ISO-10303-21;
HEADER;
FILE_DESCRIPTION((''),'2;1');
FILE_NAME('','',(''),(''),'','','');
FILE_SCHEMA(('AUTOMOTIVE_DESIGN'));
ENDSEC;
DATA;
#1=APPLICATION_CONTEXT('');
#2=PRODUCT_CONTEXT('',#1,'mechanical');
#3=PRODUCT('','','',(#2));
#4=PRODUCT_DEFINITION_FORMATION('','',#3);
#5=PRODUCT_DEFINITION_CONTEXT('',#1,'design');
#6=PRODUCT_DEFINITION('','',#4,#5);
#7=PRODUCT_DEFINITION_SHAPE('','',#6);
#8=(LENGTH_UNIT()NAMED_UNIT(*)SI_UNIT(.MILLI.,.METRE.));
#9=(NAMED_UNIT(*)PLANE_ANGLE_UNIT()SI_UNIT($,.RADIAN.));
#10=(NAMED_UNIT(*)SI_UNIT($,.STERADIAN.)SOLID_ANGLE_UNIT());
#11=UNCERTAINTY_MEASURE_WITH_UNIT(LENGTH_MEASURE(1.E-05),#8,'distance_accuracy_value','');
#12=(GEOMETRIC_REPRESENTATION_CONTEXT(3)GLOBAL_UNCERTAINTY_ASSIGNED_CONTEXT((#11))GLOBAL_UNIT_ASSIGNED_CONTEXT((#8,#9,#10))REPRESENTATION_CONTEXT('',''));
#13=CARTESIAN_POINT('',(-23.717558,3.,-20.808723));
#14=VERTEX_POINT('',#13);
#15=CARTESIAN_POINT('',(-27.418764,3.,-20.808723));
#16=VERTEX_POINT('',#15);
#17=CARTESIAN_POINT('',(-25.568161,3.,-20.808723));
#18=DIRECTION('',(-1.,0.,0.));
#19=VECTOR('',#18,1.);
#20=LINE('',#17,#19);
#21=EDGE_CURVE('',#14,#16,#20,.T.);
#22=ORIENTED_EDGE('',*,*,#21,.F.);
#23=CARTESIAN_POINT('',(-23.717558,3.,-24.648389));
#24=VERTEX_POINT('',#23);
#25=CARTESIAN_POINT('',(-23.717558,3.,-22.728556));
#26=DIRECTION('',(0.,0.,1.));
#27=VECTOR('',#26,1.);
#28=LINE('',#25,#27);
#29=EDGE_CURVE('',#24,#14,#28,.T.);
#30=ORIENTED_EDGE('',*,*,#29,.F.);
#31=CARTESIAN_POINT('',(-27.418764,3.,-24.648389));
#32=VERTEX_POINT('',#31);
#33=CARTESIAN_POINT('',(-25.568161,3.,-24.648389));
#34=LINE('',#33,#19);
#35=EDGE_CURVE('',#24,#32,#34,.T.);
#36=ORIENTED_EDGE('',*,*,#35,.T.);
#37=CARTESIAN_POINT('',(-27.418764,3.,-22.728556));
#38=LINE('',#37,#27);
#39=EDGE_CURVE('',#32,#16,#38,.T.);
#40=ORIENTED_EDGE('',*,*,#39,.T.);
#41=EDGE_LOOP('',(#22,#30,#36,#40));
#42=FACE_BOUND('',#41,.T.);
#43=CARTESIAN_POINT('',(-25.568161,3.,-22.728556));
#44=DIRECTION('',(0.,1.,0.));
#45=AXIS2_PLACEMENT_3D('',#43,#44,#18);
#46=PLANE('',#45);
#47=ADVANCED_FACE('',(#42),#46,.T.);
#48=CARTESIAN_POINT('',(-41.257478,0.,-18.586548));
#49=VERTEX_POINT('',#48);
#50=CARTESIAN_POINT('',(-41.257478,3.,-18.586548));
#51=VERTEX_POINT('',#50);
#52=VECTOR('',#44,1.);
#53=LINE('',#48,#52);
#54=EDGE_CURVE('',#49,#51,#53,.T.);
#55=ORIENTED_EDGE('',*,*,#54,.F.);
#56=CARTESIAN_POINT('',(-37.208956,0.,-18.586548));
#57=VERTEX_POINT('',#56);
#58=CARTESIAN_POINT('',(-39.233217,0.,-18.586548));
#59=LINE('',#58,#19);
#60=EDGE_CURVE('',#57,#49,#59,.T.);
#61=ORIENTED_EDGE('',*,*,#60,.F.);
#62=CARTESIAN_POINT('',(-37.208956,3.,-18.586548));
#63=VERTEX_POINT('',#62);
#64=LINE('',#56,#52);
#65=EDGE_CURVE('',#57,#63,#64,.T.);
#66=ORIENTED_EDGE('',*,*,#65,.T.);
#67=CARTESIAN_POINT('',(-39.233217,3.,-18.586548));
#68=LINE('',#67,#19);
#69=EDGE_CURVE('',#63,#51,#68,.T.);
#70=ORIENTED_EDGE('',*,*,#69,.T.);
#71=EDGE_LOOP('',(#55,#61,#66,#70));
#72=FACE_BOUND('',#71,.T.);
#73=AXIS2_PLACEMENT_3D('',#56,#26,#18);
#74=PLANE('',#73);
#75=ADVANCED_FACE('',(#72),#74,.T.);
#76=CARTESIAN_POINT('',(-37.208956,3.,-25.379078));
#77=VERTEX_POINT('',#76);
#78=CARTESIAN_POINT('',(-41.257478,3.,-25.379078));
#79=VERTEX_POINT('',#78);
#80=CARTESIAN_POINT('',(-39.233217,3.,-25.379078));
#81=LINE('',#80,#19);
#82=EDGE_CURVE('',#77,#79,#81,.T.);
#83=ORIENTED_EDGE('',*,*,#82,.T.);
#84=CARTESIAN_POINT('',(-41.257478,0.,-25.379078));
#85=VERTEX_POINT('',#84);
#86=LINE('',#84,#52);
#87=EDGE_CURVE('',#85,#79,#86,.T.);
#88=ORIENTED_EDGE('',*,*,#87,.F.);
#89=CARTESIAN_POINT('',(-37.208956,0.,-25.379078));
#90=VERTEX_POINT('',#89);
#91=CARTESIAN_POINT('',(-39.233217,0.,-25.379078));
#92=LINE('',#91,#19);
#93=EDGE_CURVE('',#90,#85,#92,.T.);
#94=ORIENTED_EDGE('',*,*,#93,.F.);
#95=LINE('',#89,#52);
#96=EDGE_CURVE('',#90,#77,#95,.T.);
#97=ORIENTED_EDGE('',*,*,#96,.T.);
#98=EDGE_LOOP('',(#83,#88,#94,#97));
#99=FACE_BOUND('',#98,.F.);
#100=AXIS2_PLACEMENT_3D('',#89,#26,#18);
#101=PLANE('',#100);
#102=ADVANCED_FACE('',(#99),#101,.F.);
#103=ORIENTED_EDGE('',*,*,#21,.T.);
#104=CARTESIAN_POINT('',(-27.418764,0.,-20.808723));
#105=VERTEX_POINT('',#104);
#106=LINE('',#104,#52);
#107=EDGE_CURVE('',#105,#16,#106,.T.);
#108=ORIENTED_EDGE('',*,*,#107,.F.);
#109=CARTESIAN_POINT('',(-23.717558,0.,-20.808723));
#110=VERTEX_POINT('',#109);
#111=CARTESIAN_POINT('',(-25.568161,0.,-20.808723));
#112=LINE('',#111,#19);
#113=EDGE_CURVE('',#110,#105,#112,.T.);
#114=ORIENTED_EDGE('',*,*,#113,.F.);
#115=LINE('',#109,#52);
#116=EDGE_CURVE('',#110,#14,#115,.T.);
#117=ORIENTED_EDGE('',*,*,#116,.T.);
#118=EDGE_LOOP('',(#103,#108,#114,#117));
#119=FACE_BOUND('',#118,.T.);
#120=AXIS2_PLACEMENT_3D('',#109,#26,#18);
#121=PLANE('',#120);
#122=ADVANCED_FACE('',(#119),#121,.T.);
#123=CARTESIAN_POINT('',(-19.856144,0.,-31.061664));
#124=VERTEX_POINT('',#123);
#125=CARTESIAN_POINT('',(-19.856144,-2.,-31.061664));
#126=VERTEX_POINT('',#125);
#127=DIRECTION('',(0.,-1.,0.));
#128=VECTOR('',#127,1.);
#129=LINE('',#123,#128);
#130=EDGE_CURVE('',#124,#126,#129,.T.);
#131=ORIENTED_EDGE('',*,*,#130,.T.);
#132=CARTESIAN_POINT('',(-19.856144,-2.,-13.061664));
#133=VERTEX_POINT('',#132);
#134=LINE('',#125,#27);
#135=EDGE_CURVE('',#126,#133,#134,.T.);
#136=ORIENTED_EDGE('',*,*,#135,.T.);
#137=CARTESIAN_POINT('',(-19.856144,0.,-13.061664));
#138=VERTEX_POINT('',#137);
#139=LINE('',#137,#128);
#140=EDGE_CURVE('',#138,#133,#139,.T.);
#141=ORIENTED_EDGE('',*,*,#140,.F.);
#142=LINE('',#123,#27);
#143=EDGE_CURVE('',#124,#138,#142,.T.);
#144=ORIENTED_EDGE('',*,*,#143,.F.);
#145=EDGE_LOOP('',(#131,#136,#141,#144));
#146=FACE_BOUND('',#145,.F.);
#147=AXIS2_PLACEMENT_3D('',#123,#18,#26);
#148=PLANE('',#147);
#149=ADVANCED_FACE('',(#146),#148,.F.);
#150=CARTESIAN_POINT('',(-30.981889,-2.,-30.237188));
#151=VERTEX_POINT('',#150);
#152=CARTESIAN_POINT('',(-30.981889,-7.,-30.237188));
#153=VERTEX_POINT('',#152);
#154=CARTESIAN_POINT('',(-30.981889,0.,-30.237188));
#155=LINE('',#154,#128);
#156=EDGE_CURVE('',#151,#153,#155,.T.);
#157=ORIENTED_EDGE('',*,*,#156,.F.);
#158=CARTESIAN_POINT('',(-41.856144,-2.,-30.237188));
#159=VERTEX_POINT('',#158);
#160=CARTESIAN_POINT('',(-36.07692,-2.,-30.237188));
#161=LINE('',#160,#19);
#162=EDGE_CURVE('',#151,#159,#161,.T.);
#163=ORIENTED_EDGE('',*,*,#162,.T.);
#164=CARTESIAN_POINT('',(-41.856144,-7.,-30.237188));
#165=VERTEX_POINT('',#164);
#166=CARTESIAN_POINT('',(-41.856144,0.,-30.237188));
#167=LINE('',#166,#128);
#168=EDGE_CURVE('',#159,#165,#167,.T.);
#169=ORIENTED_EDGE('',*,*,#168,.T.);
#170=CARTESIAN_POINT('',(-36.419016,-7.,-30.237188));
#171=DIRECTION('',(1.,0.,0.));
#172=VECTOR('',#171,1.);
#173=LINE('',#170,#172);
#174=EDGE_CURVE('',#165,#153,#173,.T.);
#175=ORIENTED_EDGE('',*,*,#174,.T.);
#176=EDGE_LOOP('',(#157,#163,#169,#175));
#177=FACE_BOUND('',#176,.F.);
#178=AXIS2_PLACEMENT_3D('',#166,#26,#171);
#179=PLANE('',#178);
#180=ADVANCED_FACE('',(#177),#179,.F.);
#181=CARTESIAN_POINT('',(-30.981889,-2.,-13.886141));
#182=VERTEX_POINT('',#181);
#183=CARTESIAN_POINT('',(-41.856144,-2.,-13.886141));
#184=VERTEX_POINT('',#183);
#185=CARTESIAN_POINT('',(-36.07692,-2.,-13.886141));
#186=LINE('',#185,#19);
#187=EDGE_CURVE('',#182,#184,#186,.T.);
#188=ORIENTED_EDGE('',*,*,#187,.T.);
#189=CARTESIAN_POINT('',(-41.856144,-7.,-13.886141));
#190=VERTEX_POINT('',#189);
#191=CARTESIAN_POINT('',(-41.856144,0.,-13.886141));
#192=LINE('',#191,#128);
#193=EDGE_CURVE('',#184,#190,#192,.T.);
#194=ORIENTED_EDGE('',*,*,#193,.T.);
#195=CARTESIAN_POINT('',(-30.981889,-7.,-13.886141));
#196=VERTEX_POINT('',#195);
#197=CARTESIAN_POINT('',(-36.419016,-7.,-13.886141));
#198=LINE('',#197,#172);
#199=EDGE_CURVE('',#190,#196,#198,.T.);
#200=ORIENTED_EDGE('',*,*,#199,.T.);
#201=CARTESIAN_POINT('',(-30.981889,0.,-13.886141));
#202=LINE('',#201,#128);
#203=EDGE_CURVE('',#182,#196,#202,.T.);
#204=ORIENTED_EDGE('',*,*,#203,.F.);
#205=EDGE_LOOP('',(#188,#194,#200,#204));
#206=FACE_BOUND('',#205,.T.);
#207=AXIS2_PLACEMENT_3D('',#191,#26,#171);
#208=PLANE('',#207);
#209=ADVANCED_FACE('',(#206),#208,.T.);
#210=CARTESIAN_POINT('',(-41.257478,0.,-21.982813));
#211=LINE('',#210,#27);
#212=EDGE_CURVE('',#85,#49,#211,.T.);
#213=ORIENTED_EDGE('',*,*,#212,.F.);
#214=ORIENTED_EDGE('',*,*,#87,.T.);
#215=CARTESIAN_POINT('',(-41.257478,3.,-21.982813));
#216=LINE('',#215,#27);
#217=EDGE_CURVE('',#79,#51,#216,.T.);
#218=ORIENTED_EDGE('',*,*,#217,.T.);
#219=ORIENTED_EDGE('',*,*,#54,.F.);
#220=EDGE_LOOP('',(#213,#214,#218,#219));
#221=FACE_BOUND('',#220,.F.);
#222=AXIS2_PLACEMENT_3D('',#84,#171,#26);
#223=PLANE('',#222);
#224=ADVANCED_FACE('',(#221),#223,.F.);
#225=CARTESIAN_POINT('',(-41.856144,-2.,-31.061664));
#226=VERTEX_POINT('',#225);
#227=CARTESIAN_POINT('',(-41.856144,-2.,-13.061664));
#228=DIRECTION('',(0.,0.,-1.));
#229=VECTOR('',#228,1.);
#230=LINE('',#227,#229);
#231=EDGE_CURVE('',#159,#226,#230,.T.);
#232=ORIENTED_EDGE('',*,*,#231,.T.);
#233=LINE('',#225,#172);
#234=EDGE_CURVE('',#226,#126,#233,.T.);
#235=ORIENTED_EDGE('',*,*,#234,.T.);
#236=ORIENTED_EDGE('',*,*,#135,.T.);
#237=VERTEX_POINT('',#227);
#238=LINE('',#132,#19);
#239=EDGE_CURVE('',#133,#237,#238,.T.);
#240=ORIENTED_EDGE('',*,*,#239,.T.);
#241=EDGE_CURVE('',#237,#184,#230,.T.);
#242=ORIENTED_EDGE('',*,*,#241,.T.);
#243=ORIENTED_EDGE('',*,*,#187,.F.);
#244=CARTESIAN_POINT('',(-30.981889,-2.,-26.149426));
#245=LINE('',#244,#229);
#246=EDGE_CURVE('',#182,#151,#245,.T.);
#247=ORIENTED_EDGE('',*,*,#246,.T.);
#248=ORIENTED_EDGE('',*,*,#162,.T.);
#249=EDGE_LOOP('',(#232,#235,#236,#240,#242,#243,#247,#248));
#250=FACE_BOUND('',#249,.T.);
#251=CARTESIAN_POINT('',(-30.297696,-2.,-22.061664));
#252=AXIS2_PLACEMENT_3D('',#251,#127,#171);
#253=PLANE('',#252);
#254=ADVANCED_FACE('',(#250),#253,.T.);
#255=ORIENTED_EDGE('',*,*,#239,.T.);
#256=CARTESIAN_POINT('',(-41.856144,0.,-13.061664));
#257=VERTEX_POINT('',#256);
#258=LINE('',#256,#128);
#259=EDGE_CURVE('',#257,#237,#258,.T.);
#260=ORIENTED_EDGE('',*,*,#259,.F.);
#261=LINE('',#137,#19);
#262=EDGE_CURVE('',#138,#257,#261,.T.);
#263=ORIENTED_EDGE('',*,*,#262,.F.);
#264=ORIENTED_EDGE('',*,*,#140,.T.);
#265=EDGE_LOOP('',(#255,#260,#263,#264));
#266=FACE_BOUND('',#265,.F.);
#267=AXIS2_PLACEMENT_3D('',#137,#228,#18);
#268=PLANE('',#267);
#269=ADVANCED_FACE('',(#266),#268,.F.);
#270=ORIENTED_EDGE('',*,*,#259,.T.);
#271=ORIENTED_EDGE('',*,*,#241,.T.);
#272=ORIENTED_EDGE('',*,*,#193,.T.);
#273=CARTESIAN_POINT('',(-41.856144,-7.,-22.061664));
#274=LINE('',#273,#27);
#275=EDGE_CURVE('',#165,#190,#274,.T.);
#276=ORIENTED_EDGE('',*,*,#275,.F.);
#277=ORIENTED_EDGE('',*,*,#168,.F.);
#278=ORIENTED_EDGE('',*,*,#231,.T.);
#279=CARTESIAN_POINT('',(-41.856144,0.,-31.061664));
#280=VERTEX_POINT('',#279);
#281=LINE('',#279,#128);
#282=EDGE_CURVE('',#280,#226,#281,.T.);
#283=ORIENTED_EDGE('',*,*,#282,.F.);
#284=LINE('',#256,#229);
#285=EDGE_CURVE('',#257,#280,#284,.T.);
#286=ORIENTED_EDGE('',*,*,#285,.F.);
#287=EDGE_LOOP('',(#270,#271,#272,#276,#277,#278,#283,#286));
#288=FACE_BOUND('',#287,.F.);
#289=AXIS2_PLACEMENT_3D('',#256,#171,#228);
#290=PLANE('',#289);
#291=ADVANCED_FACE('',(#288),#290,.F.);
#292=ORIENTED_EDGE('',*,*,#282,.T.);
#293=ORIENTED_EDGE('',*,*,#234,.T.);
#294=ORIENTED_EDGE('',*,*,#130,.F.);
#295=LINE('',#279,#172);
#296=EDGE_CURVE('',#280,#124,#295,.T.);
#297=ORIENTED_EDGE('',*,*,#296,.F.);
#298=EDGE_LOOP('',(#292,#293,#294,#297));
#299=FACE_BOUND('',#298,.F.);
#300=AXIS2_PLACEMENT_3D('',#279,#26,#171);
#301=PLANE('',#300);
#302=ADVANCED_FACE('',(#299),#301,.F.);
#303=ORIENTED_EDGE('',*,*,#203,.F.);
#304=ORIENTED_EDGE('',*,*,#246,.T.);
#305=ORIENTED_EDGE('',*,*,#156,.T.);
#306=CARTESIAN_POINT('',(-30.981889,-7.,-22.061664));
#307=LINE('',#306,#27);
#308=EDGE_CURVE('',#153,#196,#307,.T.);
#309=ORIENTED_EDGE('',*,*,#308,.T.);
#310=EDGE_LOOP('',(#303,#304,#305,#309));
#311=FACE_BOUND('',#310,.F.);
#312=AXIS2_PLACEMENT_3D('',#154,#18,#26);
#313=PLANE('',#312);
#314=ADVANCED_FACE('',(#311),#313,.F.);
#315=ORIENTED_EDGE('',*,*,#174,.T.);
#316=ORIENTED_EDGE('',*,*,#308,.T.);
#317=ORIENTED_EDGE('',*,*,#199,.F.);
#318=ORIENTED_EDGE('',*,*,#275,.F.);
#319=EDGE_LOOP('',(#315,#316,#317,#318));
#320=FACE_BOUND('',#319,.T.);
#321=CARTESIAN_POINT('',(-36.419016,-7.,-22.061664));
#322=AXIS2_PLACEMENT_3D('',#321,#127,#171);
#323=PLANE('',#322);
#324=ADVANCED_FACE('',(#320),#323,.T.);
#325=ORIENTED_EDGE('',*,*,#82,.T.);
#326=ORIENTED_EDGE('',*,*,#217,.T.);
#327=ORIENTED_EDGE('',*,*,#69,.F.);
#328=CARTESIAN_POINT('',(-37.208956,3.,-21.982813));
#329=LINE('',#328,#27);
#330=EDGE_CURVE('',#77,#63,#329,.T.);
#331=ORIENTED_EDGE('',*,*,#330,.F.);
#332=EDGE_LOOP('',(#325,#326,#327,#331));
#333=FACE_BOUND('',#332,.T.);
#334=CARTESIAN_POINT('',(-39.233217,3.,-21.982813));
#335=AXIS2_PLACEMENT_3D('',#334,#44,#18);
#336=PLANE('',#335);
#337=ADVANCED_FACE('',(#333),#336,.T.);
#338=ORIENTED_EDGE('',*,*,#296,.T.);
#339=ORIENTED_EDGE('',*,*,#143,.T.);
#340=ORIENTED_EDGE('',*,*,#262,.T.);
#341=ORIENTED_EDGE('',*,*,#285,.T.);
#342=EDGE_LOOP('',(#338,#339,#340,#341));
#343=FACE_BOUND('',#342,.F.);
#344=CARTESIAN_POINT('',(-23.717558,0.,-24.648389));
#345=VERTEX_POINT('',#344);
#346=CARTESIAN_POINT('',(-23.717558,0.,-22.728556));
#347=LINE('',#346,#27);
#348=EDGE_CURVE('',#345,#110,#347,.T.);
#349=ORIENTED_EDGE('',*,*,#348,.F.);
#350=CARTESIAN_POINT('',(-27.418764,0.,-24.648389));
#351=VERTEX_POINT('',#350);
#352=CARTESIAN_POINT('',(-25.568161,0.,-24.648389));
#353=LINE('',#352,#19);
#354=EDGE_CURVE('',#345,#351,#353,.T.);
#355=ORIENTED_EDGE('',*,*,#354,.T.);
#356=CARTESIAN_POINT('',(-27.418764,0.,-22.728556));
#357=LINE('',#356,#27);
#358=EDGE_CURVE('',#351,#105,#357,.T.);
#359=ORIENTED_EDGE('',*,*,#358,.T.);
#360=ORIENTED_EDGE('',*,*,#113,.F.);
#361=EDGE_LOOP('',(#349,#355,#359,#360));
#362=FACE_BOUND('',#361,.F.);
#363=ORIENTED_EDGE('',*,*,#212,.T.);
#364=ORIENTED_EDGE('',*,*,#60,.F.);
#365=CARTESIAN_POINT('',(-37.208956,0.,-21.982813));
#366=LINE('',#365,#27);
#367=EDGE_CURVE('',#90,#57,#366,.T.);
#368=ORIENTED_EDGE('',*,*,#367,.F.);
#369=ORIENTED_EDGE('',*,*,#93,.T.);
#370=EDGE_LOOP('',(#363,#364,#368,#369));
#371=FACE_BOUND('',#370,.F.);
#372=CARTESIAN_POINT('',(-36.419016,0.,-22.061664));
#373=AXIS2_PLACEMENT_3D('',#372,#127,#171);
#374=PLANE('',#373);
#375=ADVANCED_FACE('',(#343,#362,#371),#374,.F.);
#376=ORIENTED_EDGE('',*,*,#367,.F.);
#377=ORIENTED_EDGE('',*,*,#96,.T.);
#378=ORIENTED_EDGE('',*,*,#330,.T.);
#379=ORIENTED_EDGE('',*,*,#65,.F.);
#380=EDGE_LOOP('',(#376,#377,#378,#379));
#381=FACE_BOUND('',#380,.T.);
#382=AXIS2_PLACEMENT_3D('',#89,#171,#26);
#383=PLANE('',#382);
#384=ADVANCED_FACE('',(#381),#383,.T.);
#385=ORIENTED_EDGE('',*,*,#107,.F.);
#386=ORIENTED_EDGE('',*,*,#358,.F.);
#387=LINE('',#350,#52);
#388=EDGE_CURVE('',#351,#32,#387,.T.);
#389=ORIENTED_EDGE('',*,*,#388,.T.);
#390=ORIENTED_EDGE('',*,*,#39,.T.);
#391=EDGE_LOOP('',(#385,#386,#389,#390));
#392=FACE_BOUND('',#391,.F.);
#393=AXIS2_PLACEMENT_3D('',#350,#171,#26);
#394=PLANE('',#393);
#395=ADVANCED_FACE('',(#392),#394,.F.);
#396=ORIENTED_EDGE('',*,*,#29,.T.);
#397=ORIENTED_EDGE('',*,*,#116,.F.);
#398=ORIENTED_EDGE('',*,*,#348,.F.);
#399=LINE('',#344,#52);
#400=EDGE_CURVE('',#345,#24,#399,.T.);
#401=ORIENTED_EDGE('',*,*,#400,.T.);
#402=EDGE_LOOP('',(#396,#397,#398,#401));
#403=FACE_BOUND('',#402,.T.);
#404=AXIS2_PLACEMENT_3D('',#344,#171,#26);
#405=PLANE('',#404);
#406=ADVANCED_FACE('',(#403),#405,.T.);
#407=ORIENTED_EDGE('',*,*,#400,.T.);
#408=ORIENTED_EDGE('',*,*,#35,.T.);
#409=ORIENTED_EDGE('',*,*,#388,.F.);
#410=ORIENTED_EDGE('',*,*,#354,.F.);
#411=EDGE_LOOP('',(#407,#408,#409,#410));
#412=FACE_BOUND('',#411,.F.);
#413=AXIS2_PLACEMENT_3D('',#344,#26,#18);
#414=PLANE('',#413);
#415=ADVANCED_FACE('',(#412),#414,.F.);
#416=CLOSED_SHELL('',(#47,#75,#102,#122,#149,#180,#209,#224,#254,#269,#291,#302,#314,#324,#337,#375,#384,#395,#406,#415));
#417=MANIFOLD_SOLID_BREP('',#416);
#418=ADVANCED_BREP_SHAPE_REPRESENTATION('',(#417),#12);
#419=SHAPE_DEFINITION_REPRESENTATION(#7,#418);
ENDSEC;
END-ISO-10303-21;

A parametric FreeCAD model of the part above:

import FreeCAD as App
import Part
import Sketcher

doc = App.newDocument("Part")
params = doc.addObject("Spreadsheet::Sheet", "Params")
for row, (alias, value) in enumerate([
    ("sketch1_width", "22 mm"),
    ("sketch1_height", "18 mm"),
    ("pad1_length", "2 mm"),
    ("pad2_length", "7 mm"),
    ("pad3_length", "3 mm"),
], start=1):
    params.set(f"A{row}", alias)
    params.set(f"B{row}", "=" + value)
    params.setAlias(f"B{row}", alias)

body = doc.addObject("PartDesign::Body", "Body")

# Sketch on XZ plane
sketch1 = body.newObject("Sketcher::SketchObject", "Sketch")
sketch1.AttachmentSupport = (doc.getObject("XZ_Plane"), [""])
sketch1.MapMode = "FlatFace"
sketch1.addGeometry(Part.LineSegment(App.Vector(-19.856144, -13.061664, 0), App.Vector(-41.856144, -13.061664, 0)), False)
sketch1.addGeometry(Part.LineSegment(App.Vector(-41.856144, -13.061664, 0), App.Vector(-41.856144, -31.061664, 0)), False)
sketch1.addGeometry(Part.LineSegment(App.Vector(-41.856144, -31.061664, 0), App.Vector(-19.856144, -31.061664, 0)), False)
sketch1.addGeometry(Part.LineSegment(App.Vector(-19.856144, -31.061664, 0), App.Vector(-19.856144, -13.061664, 0)), False)
sketch1.addConstraint(Sketcher.Constraint("Coincident", 0, 2, 1, 1))
sketch1.addConstraint(Sketcher.Constraint("Coincident", 1, 2, 2, 1))
sketch1.addConstraint(Sketcher.Constraint("Coincident", 2, 2, 3, 1))
sketch1.addConstraint(Sketcher.Constraint("Coincident", 3, 2, 0, 1))
sketch1.addConstraint(Sketcher.Constraint("Horizontal", 0))
sketch1.addConstraint(Sketcher.Constraint("Vertical", 1))
sketch1.addConstraint(Sketcher.Constraint("Horizontal", 2))
sketch1.addConstraint(Sketcher.Constraint("Vertical", 3))
sketch1.addConstraint(Sketcher.Constraint("DistanceX", 0, 2, 0, 1, 22.0))
sketch1.addConstraint(Sketcher.Constraint("DistanceY", 1, 2, 1, 1, 18.0))
sketch1.addConstraint(Sketcher.Constraint("DistanceX", 0, 2, -1, 1, 41.856144))
sketch1.addConstraint(Sketcher.Constraint("DistanceY", 0, 2, -1, 1, 13.061664))
sketch1.setExpression("Constraints[8]", "Params.sketch1_width")
sketch1.setExpression("Constraints[9]", "Params.sketch1_height")
pad1 = body.newObject("PartDesign::Pad", "Pad")
pad1.Profile = sketch1
pad1.setExpression("Length", "Params.pad1_length")

# Sketch on XZ plane
sketch2 = body.newObject("Sketcher::SketchObject", "Sketch001")
sketch2.AttachmentSupport = (doc.getObject("XZ_Plane"), [""])
sketch2.MapMode = "FlatFace"
sketch2.addGeometry(Part.LineSegment(App.Vector(-41.856144, -13.886141, 0), App.Vector(-41.856144, -30.237188, 0)), False)
sketch2.addGeometry(Part.LineSegment(App.Vector(-41.856144, -30.237188, 0), App.Vector(-30.981889, -30.237188, 0)), False)
sketch2.addGeometry(Part.LineSegment(App.Vector(-30.981889, -30.237188, 0), App.Vector(-30.981889, -13.886141, 0)), False)
sketch2.addGeometry(Part.LineSegment(App.Vector(-30.981889, -13.886141, 0), App.Vector(-41.856144, -13.886141, 0)), False)
sketch2.addConstraint(Sketcher.Constraint("Coincident", 0, 2, 1, 1))
sketch2.addConstraint(Sketcher.Constraint("Coincident", 1, 2, 2, 1))
sketch2.addConstraint(Sketcher.Constraint("Coincident", 2, 2, 3, 1))
sketch2.addConstraint(Sketcher.Constraint("Coincident", 3, 2, 0, 1))
sketch2.addConstraint(Sketcher.Constraint("Vertical", 0))
sketch2.addConstraint(Sketcher.Constraint("Horizontal", 1))
sketch2.addConstraint(Sketcher.Constraint("Vertical", 2))
sketch2.addConstraint(Sketcher.Constraint("Horizontal", 3))
sketch2.addConstraint(Sketcher.Constraint("DistanceX", 1, 1, 1, 2, 10.874255))
sketch2.addConstraint(Sketcher.Constraint("DistanceY", 0, 2, 0, 1, 16.351047))
sketch2.addConstraint(Sketcher.Constraint("DistanceX", 1, 2, -1, 1, 30.981889))
sketch2.addConstraint(Sketcher.Constraint("DistanceY", 2, 2, -1, 1, 13.886141))
pad2 = body.newObject("PartDesign::Pad", "Pad001")
pad2.Profile = sketch2
pad2.setExpression("Length", "Params.pad2_length")

# Sketch on XZ plane
sketch3 = body.newObject("Sketcher::SketchObject", "Sketch002")
sketch3.AttachmentSupport = (doc.getObject("XZ_Plane"), [""])
sketch3.MapMode = "FlatFace"
sketch3.addGeometry(Part.LineSegment(App.Vector(-37.208956, -18.586548, 0), App.Vector(-37.208956, -25.379078, 0)), False)
sketch3.addGeometry(Part.LineSegment(App.Vector(-37.208956, -25.379078, 0), App.Vector(-41.257478, -25.379078, 0)), False)
sketch3.addGeometry(Part.LineSegment(App.Vector(-41.257478, -25.379078, 0), App.Vector(-41.257478, -18.586548, 0)), False)
sketch3.addGeometry(Part.LineSegment(App.Vector(-41.257478, -18.586548, 0), App.Vector(-37.208956, -18.586548, 0)), False)
sketch3.addGeometry(Part.LineSegment(App.Vector(-23.717558, -20.808723, 0), App.Vector(-23.717558, -24.648389, 0)), False)
sketch3.addGeometry(Part.LineSegment(App.Vector(-23.717558, -24.648389, 0), App.Vector(-27.418764, -24.648389, 0)), False)
sketch3.addGeometry(Part.LineSegment(App.Vector(-27.418764, -24.648389, 0), App.Vector(-27.418764, -20.808723, 0)), False)
sketch3.addGeometry(Part.LineSegment(App.Vector(-27.418764, -20.808723, 0), App.Vector(-23.717558, -20.808723, 0)), False)
sketch3.addConstraint(Sketcher.Constraint("Coincident", 0, 2, 1, 1))
sketch3.addConstraint(Sketcher.Constraint("Coincident", 1, 2, 2, 1))
sketch3.addConstraint(Sketcher.Constraint("Coincident", 2, 2, 3, 1))
sketch3.addConstraint(Sketcher.Constraint("Coincident", 3, 2, 0, 1))
sketch3.addConstraint(Sketcher.Constraint("Coincident", 4, 2, 5, 1))
sketch3.addConstraint(Sketcher.Constraint("Coincident", 5, 2, 6, 1))
sketch3.addConstraint(Sketcher.Constraint("Coincident", 6, 2, 7, 1))
sketch3.addConstraint(Sketcher.Constraint("Coincident", 7, 2, 4, 1))
sketch3.addConstraint(Sketcher.Constraint("Vertical", 0))
sketch3.addConstraint(Sketcher.Constraint("Horizontal", 1))
sketch3.addConstraint(Sketcher.Constraint("Vertical", 2))
sketch3.addConstraint(Sketcher.Constraint("Horizontal", 3))
sketch3.addConstraint(Sketcher.Constraint("Vertical", 4))
sketch3.addConstraint(Sketcher.Constraint("Horizontal", 5))
sketch3.addConstraint(Sketcher.Constraint("Vertical", 6))
sketch3.addConstraint(Sketcher.Constraint("Horizontal", 7))
sketch3.addConstraint(Sketcher.Constraint("DistanceY", 0, 2, 0, 1, 6.79253))
sketch3.addConstraint(Sketcher.Constraint("DistanceX", 1, 2, 1, 1, 4.048523))
sketch3.addConstraint(Sketcher.Constraint("DistanceX", 5, 2, 5, 1, 3.701206))
sketch3.addConstraint(Sketcher.Constraint("DistanceY", 4, 2, 4, 1, 3.839666))
sketch3.addConstraint(Sketcher.Constraint("DistanceY", 0, 2, -1, 1, 25.379078))
sketch3.addConstraint(Sketcher.Constraint("DistanceX", 1, 2, -1, 1, 41.257478))
sketch3.addConstraint(Sketcher.Constraint("DistanceX", 4, 2, -1, 1, 23.717558))
sketch3.addConstraint(Sketcher.Constraint("DistanceY", 4, 2, -1, 1, 24.648389))
pad3 = body.newObject("PartDesign::Pad", "Pad002")
pad3.Profile = sketch3
pad3.setExpression("Length", "Params.pad3_length")
pad3.Reversed = True

doc.recompute()
